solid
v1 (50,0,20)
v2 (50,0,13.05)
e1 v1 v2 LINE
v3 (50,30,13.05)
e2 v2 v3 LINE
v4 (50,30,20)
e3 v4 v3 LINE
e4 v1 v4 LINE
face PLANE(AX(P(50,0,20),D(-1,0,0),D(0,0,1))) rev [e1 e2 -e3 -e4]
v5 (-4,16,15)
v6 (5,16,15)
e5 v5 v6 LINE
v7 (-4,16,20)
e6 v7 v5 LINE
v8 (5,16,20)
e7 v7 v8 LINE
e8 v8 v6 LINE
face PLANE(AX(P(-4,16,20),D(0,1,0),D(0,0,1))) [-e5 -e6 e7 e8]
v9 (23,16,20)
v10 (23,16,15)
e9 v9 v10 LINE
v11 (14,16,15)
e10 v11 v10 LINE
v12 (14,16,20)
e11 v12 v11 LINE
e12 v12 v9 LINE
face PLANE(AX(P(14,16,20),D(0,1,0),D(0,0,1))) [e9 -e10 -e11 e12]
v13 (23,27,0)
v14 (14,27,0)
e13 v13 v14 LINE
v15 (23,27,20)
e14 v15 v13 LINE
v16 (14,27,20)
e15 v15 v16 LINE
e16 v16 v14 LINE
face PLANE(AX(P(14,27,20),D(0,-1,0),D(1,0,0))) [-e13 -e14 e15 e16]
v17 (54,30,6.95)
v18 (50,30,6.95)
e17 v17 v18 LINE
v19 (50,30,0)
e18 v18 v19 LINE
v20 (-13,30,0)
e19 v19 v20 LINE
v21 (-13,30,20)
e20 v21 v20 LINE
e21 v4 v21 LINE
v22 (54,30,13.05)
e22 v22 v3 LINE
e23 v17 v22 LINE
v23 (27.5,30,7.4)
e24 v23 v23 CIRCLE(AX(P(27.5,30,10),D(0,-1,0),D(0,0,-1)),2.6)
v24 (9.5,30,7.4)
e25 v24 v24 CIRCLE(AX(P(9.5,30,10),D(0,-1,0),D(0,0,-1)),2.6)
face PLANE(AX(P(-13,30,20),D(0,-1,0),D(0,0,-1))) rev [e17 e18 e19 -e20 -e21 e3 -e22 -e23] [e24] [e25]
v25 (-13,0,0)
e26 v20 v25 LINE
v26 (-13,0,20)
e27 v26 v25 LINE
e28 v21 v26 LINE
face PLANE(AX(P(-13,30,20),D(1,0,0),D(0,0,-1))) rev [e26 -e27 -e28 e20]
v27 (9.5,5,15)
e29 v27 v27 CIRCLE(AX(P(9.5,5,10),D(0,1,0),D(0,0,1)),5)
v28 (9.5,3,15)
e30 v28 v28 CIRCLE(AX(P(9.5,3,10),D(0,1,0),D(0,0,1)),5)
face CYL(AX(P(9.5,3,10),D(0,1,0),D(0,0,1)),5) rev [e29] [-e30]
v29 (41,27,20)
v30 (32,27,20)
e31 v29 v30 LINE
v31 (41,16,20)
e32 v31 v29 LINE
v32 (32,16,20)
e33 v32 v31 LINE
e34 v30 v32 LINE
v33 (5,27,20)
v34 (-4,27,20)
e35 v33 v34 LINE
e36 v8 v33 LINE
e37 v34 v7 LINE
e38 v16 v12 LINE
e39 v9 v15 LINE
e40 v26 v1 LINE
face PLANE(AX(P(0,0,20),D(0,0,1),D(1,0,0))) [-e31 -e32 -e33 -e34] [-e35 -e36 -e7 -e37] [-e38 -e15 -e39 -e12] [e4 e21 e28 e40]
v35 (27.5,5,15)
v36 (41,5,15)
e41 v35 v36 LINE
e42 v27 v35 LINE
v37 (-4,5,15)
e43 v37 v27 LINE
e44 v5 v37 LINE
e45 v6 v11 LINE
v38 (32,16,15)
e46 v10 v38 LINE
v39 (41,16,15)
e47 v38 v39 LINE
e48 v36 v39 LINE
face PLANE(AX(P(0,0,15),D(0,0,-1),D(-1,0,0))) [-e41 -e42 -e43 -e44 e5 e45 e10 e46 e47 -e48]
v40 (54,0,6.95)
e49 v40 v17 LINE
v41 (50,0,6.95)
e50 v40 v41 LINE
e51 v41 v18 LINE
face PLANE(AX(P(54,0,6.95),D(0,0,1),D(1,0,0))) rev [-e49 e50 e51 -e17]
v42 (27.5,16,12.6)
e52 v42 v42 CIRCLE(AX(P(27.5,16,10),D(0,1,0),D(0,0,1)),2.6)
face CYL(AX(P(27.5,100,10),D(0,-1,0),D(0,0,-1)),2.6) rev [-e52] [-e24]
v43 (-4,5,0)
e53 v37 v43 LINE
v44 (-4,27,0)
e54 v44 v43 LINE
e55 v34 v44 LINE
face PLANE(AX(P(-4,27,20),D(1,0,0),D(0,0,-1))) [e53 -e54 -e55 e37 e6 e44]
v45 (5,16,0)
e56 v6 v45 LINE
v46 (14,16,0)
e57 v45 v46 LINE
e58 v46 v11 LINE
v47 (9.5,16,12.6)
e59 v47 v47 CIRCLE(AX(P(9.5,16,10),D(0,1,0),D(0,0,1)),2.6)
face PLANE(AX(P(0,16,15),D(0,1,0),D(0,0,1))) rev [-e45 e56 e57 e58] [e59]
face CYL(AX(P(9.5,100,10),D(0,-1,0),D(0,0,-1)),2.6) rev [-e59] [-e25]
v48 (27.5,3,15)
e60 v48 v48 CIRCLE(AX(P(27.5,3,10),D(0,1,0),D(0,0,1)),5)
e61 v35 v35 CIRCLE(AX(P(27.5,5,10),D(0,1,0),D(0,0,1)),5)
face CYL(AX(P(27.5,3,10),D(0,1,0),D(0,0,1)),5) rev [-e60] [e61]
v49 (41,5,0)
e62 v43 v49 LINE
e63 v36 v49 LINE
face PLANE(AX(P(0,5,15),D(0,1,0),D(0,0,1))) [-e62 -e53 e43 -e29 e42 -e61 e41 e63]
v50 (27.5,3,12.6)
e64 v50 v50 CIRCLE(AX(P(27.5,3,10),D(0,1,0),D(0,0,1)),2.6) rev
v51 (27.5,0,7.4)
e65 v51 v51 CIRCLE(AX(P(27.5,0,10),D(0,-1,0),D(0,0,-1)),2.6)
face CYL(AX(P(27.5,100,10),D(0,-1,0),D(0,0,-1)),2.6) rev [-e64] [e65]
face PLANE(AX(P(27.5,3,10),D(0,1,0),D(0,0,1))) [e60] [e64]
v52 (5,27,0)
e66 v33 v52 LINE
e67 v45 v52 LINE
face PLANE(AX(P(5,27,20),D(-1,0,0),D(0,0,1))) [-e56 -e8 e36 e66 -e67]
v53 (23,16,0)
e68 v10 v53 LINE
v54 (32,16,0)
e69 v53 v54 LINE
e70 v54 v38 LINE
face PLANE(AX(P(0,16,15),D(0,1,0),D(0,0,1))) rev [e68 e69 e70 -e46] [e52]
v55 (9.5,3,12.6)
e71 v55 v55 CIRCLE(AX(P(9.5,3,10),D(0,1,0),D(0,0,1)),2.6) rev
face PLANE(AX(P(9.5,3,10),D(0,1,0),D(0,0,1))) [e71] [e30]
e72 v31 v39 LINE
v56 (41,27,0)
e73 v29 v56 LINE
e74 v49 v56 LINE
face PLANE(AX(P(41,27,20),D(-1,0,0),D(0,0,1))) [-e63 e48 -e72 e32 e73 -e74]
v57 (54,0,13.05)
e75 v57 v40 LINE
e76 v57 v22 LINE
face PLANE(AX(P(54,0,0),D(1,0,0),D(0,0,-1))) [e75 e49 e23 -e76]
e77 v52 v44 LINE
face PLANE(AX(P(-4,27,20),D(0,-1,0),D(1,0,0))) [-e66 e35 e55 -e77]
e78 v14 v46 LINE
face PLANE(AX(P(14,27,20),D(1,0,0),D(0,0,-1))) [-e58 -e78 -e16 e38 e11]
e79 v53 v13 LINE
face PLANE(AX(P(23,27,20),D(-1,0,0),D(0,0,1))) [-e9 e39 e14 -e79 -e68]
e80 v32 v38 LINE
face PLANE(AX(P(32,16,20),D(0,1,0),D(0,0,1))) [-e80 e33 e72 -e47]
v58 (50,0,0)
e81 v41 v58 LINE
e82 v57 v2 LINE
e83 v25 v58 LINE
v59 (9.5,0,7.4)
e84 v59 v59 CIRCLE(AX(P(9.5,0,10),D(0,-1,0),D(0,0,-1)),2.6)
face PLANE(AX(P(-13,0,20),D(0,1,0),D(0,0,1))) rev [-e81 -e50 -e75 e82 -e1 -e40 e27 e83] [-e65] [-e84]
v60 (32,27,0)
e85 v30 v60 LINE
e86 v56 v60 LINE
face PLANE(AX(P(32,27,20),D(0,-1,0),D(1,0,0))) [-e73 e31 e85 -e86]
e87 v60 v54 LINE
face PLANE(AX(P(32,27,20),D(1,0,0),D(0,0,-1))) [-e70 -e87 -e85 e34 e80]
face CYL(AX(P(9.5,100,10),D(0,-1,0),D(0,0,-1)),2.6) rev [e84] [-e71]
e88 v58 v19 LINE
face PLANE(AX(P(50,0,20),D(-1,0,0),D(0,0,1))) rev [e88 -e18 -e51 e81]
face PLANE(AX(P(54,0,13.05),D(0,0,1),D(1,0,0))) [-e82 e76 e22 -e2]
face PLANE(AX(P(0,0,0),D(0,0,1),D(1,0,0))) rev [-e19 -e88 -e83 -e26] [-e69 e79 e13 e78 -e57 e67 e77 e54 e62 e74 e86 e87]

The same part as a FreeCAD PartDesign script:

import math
import FreeCAD as App
import Part
import Sketcher
from FreeCAD import Vector

doc = App.newDocument("Part")
body = doc.addObject("PartDesign::Body", "Body")

sketch1 = body.newObject("Sketcher::SketchObject", "Sketch")
sketch1.AttachmentSupport = (doc.getObject("XY_Plane"), [""])
sketch1.MapMode = "FlatFace"
sketch1.addGeometry(Part.LineSegment(Vector(-13, 30, 0), Vector(-13, 0, 0)), False)
sketch1.addGeometry(Part.LineSegment(Vector(-13, 0, 0), Vector(50, 0, 0)), False)
sketch1.addGeometry(Part.LineSegment(Vector(50, 0, 0), Vector(50, 30, 0)), False)
sketch1.addGeometry(Part.LineSegment(Vector(50, 30, 0), Vector(-13, 30, 0)), False)
sketch1.addGeometry(Part.LineSegment(Vector(5, 16, 0), Vector(-4, 16, 0)), False)
sketch1.addGeometry(Part.LineSegment(Vector(-4, 16, 0), Vector(-4, 27, 0)), False)
sketch1.addGeometry(Part.LineSegment(Vector(-4, 27, 0), Vector(5, 27, 0)), False)
sketch1.addGeometry(Part.LineSegment(Vector(5, 27, 0), Vector(5, 16, 0)), False)
sketch1.addGeometry(Part.LineSegment(Vector(23, 16, 0), Vector(14, 16, 0)), False)
sketch1.addGeometry(Part.LineSegment(Vector(14, 16, 0), Vector(14, 27, 0)), False)
sketch1.addGeometry(Part.LineSegment(Vector(14, 27, 0), Vector(23, 27, 0)), False)
sketch1.addGeometry(Part.LineSegment(Vector(23, 27, 0), Vector(23, 16, 0)), False)
sketch1.addGeometry(Part.LineSegment(Vector(41, 16, 0), Vector(32, 16, 0)), False)
sketch1.addGeometry(Part.LineSegment(Vector(32, 16, 0), Vector(32, 27, 0)), False)
sketch1.addGeometry(Part.LineSegment(Vector(32, 27, 0), Vector(41, 27, 0)), False)
sketch1.addGeometry(Part.LineSegment(Vector(41, 27, 0), Vector(41, 16, 0)), False)
sketch1.addConstraint(Sketcher.Constraint("Coincident", 0, 2, 1, 1))
sketch1.addConstraint(Sketcher.Constraint("Coincident", 1, 2, 2, 1))
sketch1.addConstraint(Sketcher.Constraint("Coincident", 2, 2, 3, 1))
sketch1.addConstraint(Sketcher.Constraint("Coincident", 3, 2, 0, 1))
sketch1.addConstraint(Sketcher.Constraint("Coincident", 4, 2, 5, 1))
sketch1.addConstraint(Sketcher.Constraint("Coincident", 5, 2, 6, 1))
sketch1.addConstraint(Sketcher.Constraint("Coincident", 6, 2, 7, 1))
sketch1.addConstraint(Sketcher.Constraint("Coincident", 7, 2, 4, 1))
sketch1.addConstraint(Sketcher.Constraint("Coincident", 8, 2, 9, 1))
sketch1.addConstraint(Sketcher.Constraint("Coincident", 9, 2, 10, 1))
sketch1.addConstraint(Sketcher.Constraint("Coincident", 10, 2, 11, 1))
sketch1.addConstraint(Sketcher.Constraint("Coincident", 11, 2, 8, 1))
sketch1.addConstraint(Sketcher.Constraint("Coincident", 12, 2, 13, 1))
sketch1.addConstraint(Sketcher.Constraint("Coincident", 13, 2, 14, 1))
sketch1.addConstraint(Sketcher.Constraint("Coincident", 14, 2, 15, 1))
sketch1.addConstraint(Sketcher.Constraint("Coincident", 15, 2, 12, 1))
sketch1.addConstraint(Sketcher.Constraint("Vertical", 0))
sketch1.addConstraint(Sketcher.Constraint("Horizontal", 1))
sketch1.addConstraint(Sketcher.Constraint("Vertical", 2))
sketch1.addConstraint(Sketcher.Constraint("Horizontal", 3))
sketch1.addConstraint(Sketcher.Constraint("Horizontal", 4))
sketch1.addConstraint(Sketcher.Constraint("Vertical", 5))
sketch1.addConstraint(Sketcher.Constraint("Horizontal", 6))
sketch1.addConstraint(Sketcher.Constraint("Vertical", 7))
sketch1.addConstraint(Sketcher.Constraint("Horizontal", 8))
sketch1.addConstraint(Sketcher.Constraint("Vertical", 9))
sketch1.addConstraint(Sketcher.Constraint("Horizontal", 10))
sketch1.addConstraint(Sketcher.Constraint("Vertical", 11))
sketch1.addConstraint(Sketcher.Constraint("Horizontal", 12))
sketch1.addConstraint(Sketcher.Constraint("Vertical", 13))
sketch1.addConstraint(Sketcher.Constraint("Horizontal", 14))
sketch1.addConstraint(Sketcher.Constraint("Vertical", 15))
sketch1.addConstraint(Sketcher.Constraint("PointOnObject", 0, 2, -1))
sketch1.addConstraint(Sketcher.Constraint("Horizontal", 7, 2, 8, 2))
sketch1.addConstraint(Sketcher.Constraint("Horizontal", 6, 2, 9, 2))
sketch1.addConstraint(Sketcher.Constraint("Horizontal", 11, 2, 12, 2))
sketch1.addConstraint(Sketcher.Constraint("Horizontal", 10, 2, 13, 2))
sketch1.addConstraint(Sketcher.Constraint("Equal", 6, 8))
sketch1.addConstraint(Sketcher.Constraint("Equal", 10, 12))
sketch1.addConstraint(Sketcher.Constraint("DistanceX", 1, 1, 1, 2, 63.0))
sketch1.addConstraint(Sketcher.Constraint("DistanceX", 4, 2, 4, 1, 9.0))
sketch1.addConstraint(Sketcher.Constraint("DistanceY", 0, 2, 0, 1, 30.0))
sketch1.addConstraint(Sketcher.Constraint("DistanceY", 5, 1, 5, 2, 11.0))
sketch1.addConstraint(Sketcher.Constraint("DistanceX", 0, 2, -1, 1, 13.0))
sketch1.addConstraint(Sketcher.Constraint("DistanceX", 4, 2, -1, 1, 4.0))
sketch1.addConstraint(Sketcher.Constraint("DistanceY", -1, 1, 4, 2, 16.0))
sketch1.addConstraint(Sketcher.Constraint("DistanceX", -1, 1, 8, 2, 14.0))
sketch1.addConstraint(Sketcher.Constraint("DistanceX", -1, 1, 12, 2, 32.0))
pad1 = body.newObject("PartDesign::Pad", "Pad")
pad1.Profile = sketch1
pad1.Length = 20

sketch2 = body.newObject("Sketcher::SketchObject", "Sketch001")
sketch2.AttachmentSupport = (doc.getObject("XY_Plane"), [""])
sketch2.MapMode = "FlatFace"
sketch2.addGeometry(Part.LineSegment(Vector(50, 16, 0), Vector(50, 5, 0)), False)
sketch2.addGeometry(Part.LineSegment(Vector(50, 5, 0), Vector(-13, 5, 0)), False)
sketch2.addGeometry(Part.LineSegment(Vector(-13, 5, 0), Vector(-13, 16, 0)), False)
sketch2.addGeometry(Part.LineSegment(Vector(-13, 16, 0), Vector(50, 16, 0)), False)
sketch2.addConstraint(Sketcher.Constraint("Coincident", 0, 2, 1, 1))
sketch2.addConstraint(Sketcher.Constraint("Coincident", 1, 2, 2, 1))
sketch2.addConstraint(Sketcher.Constraint("Coincident", 2, 2, 3, 1))
sketch2.addConstraint(Sketcher.Constraint("Coincident", 3, 2, 0, 1))
sketch2.addConstraint(Sketcher.Constraint("Vertical", 0))
sketch2.addConstraint(Sketcher.Constraint("Horizontal", 1))
sketch2.addConstraint(Sketcher.Constraint("Vertical", 2))
sketch2.addConstraint(Sketcher.Constraint("Horizontal", 3))
sketch2.addConstraint(Sketcher.Constraint("DistanceX", 1, 2, 1, 1, 63.0))
sketch2.addConstraint(Sketcher.Constraint("DistanceY", 0, 2, 0, 1, 11.0))
sketch2.addConstraint(Sketcher.Constraint("DistanceX", -1, 1, 0, 2, 50.0))
sketch2.addConstraint(Sketcher.Constraint("DistanceY", -1, 1, 0, 2, 5.0))
pocket1 = body.newObject("PartDesign::Pocket", "Pocket")
pocket1.Profile = sketch2
pocket1.Length = 15
pocket1.Reversed = True

sketch3 = body.newObject("Sketcher::SketchObject", "Sketch002")
sketch3.AttachmentSupport = (doc.getObject("XY_Plane"), [""])
sketch3.MapMode = "FlatFace"
sketch3.addGeometry(Part.LineSegment(Vector(50, 16, 0), Vector(50, 5, 0)), False)
sketch3.addGeometry(Part.LineSegment(Vector(50, 5, 0), Vector(41, 5, 0)), False)
sketch3.addGeometry(Part.LineSegment(Vector(41, 5, 0), Vector(41, 16, 0)), False)
sketch3.addGeometry(Part.LineSegment(Vector(41, 16, 0), Vector(50, 16, 0)), False)
sketch3.addGeometry(Part.LineSegment(Vector(-4, 16, 0), Vector(-4, 5, 0)), False)
sketch3.addGeometry(Part.LineSegment(Vector(-4, 5, 0), Vector(-13, 5, 0)), False)
sketch3.addGeometry(Part.LineSegment(Vector(-13, 5, 0), Vector(-13, 16, 0)), False)
sketch3.addGeometry(Part.LineSegment(Vector(-13, 16, 0), Vector(-4, 16, 0)), False)
sketch3.addConstraint(Sketcher.Constraint("Coincident", 0, 2, 1, 1))
sketch3.addConstraint(Sketcher.Constraint("Coincident", 1, 2, 2, 1))
sketch3.addConstraint(Sketcher.Constraint("Coincident", 2, 2, 3, 1))
sketch3.addConstraint(Sketcher.Constraint("Coincident", 3, 2, 0, 1))
sketch3.addConstraint(Sketcher.Constraint("Coincident", 4, 2, 5, 1))
sketch3.addConstraint(Sketcher.Constraint("Coincident", 5, 2, 6, 1))
sketch3.addConstraint(Sketcher.Constraint("Coincident", 6, 2, 7, 1))
sketch3.addConstraint(Sketcher.Constraint("Coincident", 7, 2, 4, 1))
sketch3.addConstraint(Sketcher.Constraint("Vertical", 0))
sketch3.addConstraint(Sketcher.Constraint("Horizontal", 1))
sketch3.addConstraint(Sketcher.Constraint("Vertical", 2))
sketch3.addConstraint(Sketcher.Constraint("Horizontal", 3))
sketch3.addConstraint(Sketcher.Constraint("Vertical", 4))
sketch3.addConstraint(Sketcher.Constraint("Horizontal", 5))
sketch3.addConstraint(Sketcher.Constraint("Vertical", 6))
sketch3.addConstraint(Sketcher.Constraint("Horizontal", 7))
sketch3.addConstraint(Sketcher.Constraint("Horizontal", 1, 2, 4, 2))
sketch3.addConstraint(Sketcher.Constraint("Horizontal", 3, 2, 6, 2))
sketch3.addConstraint(Sketcher.Constraint("Equal", 3, 5))
sketch3.addConstraint(Sketcher.Constraint("DistanceX", 1, 2, 1, 1, 9.0))
sketch3.addConstraint(Sketcher.Constraint("DistanceY", 0, 2, 0, 1, 11.0))
sketch3.addConstraint(Sketcher.Constraint("DistanceX", -1, 1, 0, 2, 50.0))
sketch3.addConstraint(Sketcher.Constraint("DistanceY", -1, 1, 0, 2, 5.0))
sketch3.addConstraint(Sketcher.Constraint("DistanceX", 4, 2, -1, 1, 4.0))
pad2 = body.newObject("PartDesign::Pad", "Pad001")
pad2.Profile = sketch3
pad2.Length = 15

sketch4 = body.newObject("Sketcher::SketchObject", "Sketch003")
sketch4.AttachmentSupport = (doc.getObject("XZ_Plane"), [""])
sketch4.MapMode = "FlatFace"
sketch4.addGeometry(Part.ArcOfCircle(Part.Circle(Vector(27.5, 10, 0), Vector(0, 0, 1), 2.6), math.radians(0), math.radians(90)), False)
sketch4.addGeometry(Part.ArcOfCircle(Part.Circle(Vector(27.5, 10, 0), Vector(0, 0, 1), 2.6), math.radians(90), math.radians(180)), False)
sketch4.addGeometry(Part.ArcOfCircle(Part.Circle(Vector(27.5, 10, 0), Vector(0, 0, 1), 2.6), math.radians(180), math.radians(270)), False)
sketch4.addGeometry(Part.ArcOfCircle(Part.Circle(Vector(27.5, 10, 0), Vector(0, 0, 1), 2.6), math.radians(-90), math.radians(0)), False)
sketch4.addGeometry(Part.ArcOfCircle(Part.Circle(Vector(9.5, 10, 0), Vector(0, 0, 1), 2.6), math.radians(0), math.radians(90)), False)
sketch4.addGeometry(Part.ArcOfCircle(Part.Circle(Vector(9.5, 10, 0), Vector(0, 0, 1), 2.6), math.radians(90), math.radians(180)), False)
sketch4.addGeometry(Part.ArcOfCircle(Part.Circle(Vector(9.5, 10, 0), Vector(0, 0, 1), 2.6), math.radians(180), math.radians(270)), False)
sketch4.addGeometry(Part.ArcOfCircle(Part.Circle(Vector(9.5, 10, 0), Vector(0, 0, 1), 2.6), math.radians(-90), math.radians(0)), False)
sketch4.addConstraint(Sketcher.Constraint("Tangent", 0, 2, 1, 1))
sketch4.addConstraint(Sketcher.Constraint("Tangent", 1, 2, 2, 1))
sketch4.addConstraint(Sketcher.Constraint("Tangent", 2, 2, 3, 1))
sketch4.addConstraint(Sketcher.Constraint("Tangent", 3, 2, 0, 1))
sketch4.addConstraint(Sketcher.Constraint("Tangent", 4, 2, 5, 1))
sketch4.addConstraint(Sketcher.Constraint("Tangent", 5, 2, 6, 1))
sketch4.addConstraint(Sketcher.Constraint("Tangent", 6, 2, 7, 1))
sketch4.addConstraint(Sketcher.Constraint("Tangent", 7, 2, 4, 1))
sketch4.addConstraint(Sketcher.Constraint("Equal", 0, 1))
sketch4.addConstraint(Sketcher.Constraint("Equal", 3, 4))
sketch4.addConstraint(Sketcher.Constraint("Equal", 4, 5))
sketch4.addConstraint(Sketcher.Constraint("Horizontal", 3, 3, 4, 3))
sketch4.addConstraint(Sketcher.Constraint("Horizontal", 7, 3, 1, 2))
sketch4.addConstraint(Sketcher.Constraint("Horizontal", 1, 2, 3, 2))
sketch4.addConstraint(Sketcher.Constraint("Horizontal", 3, 2, 5, 2))
sketch4.addConstraint(Sketcher.Constraint("Horizontal", 5, 2, 7, 2))
sketch4.addConstraint(Sketcher.Constraint("Vertical", 3, 3, 0, 2))
sketch4.addConstraint(Sketcher.Constraint("Vertical", 0, 2, 2, 2))
sketch4.addConstraint(Sketcher.Constraint("Vertical", 7, 3, 4, 2))
sketch4.addConstraint(Sketcher.Constraint("Vertical", 4, 2, 6, 2))
sketch4.addConstraint(Sketcher.Constraint("Radius", 0, 2.6))
sketch4.addConstraint(Sketcher.Constraint("DistanceY", -1, 1, 0, 3, 10.0))
sketch4.addConstraint(Sketcher.Constraint("DistanceX", 4, 3, 0, 3, 18.0))
sketch4.addConstraint(Sketcher.Constraint("DistanceX", -1, 1, 0, 3, 27.5))
pocket2 = body.newObject("PartDesign::Pocket", "Pocket001")
pocket2.Profile = sketch4
pocket2.Length = 100

sketch5 = body.newObject("Sketcher::SketchObject", "Sketch004")
sketch5.AttachmentSupport = (doc.getObject("XZ_Plane"), [""])
sketch5.MapMode = "FlatFace"
sketch5.AttachmentOffset = App.Placement(Vector(0, 0, -5), App.Rotation())
sketch5.addGeometry(Part.Circle(Vector(9.5, 10, 0), Vector(0, 0, 1), 5), False)
sketch5.addGeometry(Part.Circle(Vector(27.5, 10, 0), Vector(0, 0, 1), 5), False)
sketch5.addConstraint(Sketcher.Constraint("Equal", 0, 1))
sketch5.addConstraint(Sketcher.Constraint("Horizontal", 0, 3, 1, 3))
sketch5.addConstraint(Sketcher.Constraint("Diameter", 0, 10.0))
sketch5.addConstraint(Sketcher.Constraint("DistanceY", -1, 1, 0, 3, 10.0))
sketch5.addConstraint(Sketcher.Constraint("DistanceX", 0, 3, 1, 3, 18.0))
sketch5.addConstraint(Sketcher.Constraint("DistanceX", -1, 1, 0, 3, 9.5))
pocket3 = body.newObject("PartDesign::Pocket", "Pocket002")
pocket3.Profile = sketch5
pocket3.Length = 2
pocket3.Reversed = True

sketch6 = body.newObject("Sketcher::SketchObject", "Sketch005")
sketch6.AttachmentSupport = (doc.getObject("YZ_Plane"), [""])
sketch6.MapMode = "FlatFace"
sketch6.AttachmentOffset = App.Placement(Vector(0, 0, 50), App.Rotation())
sketch6.addGeometry(Part.LineSegment(Vector(30, 6.95, 0), Vector(30, 13.05, 0)), False)
sketch6.addGeometry(Part.LineSegment(Vector(30, 13.05, 0), Vector(0, 13.05, 0)), False)
sketch6.addGeometry(Part.LineSegment(Vector(0, 13.05, 0), Vector(0, 6.95, 0)), False)
sketch6.addGeometry(Part.LineSegment(Vector(0, 6.95, 0), Vector(30, 6.95, 0)), False)
sketch6.addConstraint(Sketcher.Constraint("Coincident", 0, 2, 1, 1))
sketch6.addConstraint(Sketcher.Constraint("Coincident", 1, 2, 2, 1))
sketch6.addConstraint(Sketcher.Constraint("Coincident", 2, 2, 3, 1))
sketch6.addConstraint(Sketcher.Constraint("Coincident", 3, 2, 0, 1))
sketch6.addConstraint(Sketcher.Constraint("Vertical", 0))
sketch6.addConstraint(Sketcher.Constraint("Horizontal", 1))
sketch6.addConstraint(Sketcher.Constraint("Vertical", 2))
sketch6.addConstraint(Sketcher.Constraint("Horizontal", 3))
sketch6.addConstraint(Sketcher.Constraint("PointOnObject", 1, 2, -2))
sketch6.addConstraint(Sketcher.Constraint("DistanceX", 1, 2, 1, 1, 30.0))
sketch6.addConstraint(Sketcher.Constraint("DistanceY", 0, 1, 0, 2, 6.1))
sketch6.addConstraint(Sketcher.Constraint("DistanceY", -1, 1, 0, 2, 13.05))
pad3 = body.newObject("PartDesign::Pad", "Pad002")
pad3.Profile = sketch6
pad3.Length = 4

doc.recompute()
